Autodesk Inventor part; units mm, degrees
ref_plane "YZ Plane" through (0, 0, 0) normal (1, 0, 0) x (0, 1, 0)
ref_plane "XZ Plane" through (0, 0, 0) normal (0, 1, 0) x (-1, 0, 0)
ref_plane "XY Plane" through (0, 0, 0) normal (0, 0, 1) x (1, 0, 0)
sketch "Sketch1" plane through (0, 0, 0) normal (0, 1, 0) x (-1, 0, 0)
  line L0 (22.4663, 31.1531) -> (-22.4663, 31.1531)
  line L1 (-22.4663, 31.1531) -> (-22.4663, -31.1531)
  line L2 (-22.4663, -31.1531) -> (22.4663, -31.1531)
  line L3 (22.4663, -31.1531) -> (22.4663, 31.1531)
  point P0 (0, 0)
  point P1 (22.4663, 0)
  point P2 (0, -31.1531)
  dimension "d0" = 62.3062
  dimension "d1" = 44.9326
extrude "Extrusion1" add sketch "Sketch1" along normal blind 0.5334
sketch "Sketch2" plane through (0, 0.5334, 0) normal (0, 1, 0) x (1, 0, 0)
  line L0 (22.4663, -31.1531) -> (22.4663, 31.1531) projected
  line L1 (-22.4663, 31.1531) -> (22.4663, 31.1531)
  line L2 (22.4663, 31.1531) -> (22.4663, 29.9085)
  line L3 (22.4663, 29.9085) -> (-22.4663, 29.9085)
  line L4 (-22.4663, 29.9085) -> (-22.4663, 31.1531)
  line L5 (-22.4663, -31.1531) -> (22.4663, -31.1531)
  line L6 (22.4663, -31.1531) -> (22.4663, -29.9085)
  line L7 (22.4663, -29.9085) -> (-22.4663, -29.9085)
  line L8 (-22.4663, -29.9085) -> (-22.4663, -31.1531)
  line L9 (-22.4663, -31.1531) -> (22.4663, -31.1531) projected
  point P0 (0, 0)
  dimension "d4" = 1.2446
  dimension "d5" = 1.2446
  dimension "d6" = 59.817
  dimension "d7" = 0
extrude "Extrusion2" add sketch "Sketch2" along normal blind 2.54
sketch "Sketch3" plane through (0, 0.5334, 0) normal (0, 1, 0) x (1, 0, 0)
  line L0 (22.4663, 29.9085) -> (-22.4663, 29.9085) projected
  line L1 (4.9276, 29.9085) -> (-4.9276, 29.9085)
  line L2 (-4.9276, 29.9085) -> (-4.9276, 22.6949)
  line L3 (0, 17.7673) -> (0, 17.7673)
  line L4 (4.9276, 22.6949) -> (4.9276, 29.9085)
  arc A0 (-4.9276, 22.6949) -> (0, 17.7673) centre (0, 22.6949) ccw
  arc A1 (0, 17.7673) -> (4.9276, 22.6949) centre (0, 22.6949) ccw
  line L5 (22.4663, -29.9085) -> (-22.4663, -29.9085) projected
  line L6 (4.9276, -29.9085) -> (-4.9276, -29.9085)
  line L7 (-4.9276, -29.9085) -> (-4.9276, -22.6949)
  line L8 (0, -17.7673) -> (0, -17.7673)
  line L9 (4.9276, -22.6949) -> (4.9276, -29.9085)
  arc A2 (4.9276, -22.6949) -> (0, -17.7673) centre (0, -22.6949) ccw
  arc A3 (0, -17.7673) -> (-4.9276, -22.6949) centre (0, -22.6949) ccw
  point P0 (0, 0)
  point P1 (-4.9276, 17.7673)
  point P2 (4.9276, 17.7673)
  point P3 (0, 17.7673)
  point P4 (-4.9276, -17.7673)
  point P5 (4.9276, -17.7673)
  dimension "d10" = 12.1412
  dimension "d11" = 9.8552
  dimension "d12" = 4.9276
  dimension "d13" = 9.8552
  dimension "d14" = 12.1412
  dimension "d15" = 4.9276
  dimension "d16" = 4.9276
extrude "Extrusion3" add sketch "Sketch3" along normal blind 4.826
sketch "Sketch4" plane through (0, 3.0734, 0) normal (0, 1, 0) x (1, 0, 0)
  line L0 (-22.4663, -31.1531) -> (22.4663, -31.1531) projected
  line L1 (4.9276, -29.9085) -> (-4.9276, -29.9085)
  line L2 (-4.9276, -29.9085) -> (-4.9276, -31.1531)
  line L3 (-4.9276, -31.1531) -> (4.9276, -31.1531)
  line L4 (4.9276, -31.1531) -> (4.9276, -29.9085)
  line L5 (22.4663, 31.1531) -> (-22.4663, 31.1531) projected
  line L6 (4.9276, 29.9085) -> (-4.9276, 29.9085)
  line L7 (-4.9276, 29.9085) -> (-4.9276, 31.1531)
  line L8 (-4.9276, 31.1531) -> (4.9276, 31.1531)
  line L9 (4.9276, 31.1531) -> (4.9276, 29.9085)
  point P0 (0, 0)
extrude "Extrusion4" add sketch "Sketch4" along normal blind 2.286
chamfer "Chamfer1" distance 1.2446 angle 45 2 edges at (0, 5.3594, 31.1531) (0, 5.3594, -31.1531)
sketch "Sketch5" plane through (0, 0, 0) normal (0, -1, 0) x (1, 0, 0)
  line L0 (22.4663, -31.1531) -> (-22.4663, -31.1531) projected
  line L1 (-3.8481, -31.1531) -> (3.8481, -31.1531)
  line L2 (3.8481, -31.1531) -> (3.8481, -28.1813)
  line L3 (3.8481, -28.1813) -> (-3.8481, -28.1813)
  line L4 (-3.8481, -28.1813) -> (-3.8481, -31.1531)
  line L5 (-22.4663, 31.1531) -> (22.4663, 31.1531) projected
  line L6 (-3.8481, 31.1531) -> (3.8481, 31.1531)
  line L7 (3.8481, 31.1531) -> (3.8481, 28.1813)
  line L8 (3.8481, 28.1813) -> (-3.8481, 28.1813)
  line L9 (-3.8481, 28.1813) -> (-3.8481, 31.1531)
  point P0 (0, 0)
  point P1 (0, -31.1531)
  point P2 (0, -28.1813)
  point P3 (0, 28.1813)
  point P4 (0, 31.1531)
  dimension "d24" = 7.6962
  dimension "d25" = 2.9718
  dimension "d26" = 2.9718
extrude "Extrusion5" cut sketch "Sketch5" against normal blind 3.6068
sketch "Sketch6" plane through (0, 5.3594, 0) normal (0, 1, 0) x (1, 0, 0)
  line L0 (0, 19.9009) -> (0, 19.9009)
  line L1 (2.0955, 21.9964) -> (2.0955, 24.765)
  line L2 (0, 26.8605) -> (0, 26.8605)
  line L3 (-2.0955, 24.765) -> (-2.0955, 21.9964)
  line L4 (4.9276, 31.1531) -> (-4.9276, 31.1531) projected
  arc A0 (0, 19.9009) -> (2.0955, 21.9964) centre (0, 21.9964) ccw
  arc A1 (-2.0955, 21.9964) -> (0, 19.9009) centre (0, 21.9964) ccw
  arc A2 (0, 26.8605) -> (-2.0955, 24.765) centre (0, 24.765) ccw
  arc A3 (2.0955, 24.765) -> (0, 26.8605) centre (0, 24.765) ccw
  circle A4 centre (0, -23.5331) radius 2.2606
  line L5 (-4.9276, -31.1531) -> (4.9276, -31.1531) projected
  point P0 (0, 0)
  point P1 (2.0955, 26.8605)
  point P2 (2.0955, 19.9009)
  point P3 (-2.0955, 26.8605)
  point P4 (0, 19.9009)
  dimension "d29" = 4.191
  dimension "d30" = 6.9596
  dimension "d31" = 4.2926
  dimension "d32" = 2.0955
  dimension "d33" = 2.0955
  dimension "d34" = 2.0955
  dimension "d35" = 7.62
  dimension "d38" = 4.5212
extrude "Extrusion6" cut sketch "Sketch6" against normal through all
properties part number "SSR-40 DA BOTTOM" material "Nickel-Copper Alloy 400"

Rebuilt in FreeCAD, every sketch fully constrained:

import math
import FreeCAD as App
import Part
import Sketcher
Q = App.Units.Quantity


def edges_at(feature, points):
    """Names of the edges that pass closest to the given points."""
    edges = feature.Shape.Edges
    near = lambda p: min(range(len(edges)), key=lambda i: edges[i].distToShape(Part.Vertex(*p))[0])
    return sorted({f"Edge{near(p) + 1}" for p in points})


def add_polygon(sketch, points):
    """Adds a closed chain of lines whose ends are joined by coincident constraints."""
    first, n = sketch.GeometryCount, len(points)
    for a, b in zip(points, points[1:] + points[:1]):
        sketch.addGeometry(Part.LineSegment(App.Vector(*a, 0), App.Vector(*b, 0)), False)
    for i in range(n):
        sketch.addConstraint(Sketcher.Constraint("Coincident", first + i, 2, first + (i + 1) % n, 1))

doc = App.newDocument("Part")
body = doc.addObject("PartDesign::Body", "Body")

# Sketch on XZ plane
sketch1 = doc.addObject("Sketcher::SketchObject", "Sketch")
body.addObject(sketch1)
sketch1.AttachmentSupport = (doc.XZ_Plane, [""])
sketch1.MapMode = "FlatFace"
add_polygon(sketch1, [(-22.4663, -31.1531), (-22.4663, 31.1531), (22.4663, 31.1531), (22.4663, -31.1531)])  # lines 0-3
sketch1.addConstraint([
    Sketcher.Constraint("Vertical", 0),
    Sketcher.Constraint("Horizontal", 1),
    Sketcher.Constraint("Vertical", 2),
    Sketcher.Constraint("Horizontal", 3),
    Sketcher.Constraint("Symmetric", 0, 2, 2, 2, -1, 1),
    Sketcher.Constraint("DistanceX", 1, 1, 1, 2, Q("1.769 in")),
    Sketcher.Constraint("DistanceY", 0, 1, 0, 2, Q("2.453 in")),
])
pad1 = doc.addObject("PartDesign::Pad", "Pad")
body.addObject(pad1)
pad1.Profile = sketch1
pad1.Length = Q("0.021 in")
pad1.Reversed = True

# Sketch on XZ plane
sketch2 = doc.addObject("Sketcher::SketchObject", "Sketch001")
body.addObject(sketch2)
sketch2.AttachmentSupport = (doc.XZ_Plane, [""])
sketch2.MapMode = "FlatFace"
sketch2.AttachmentOffset = App.Placement(App.Vector(0, 0, -0.021 * 25.4), App.Rotation())
add_polygon(sketch2, [(-22.4663, 31.1531), (22.4663, 31.1531), (22.4663, 29.9085), (-22.4663, 29.9085)])  # lines 0-3
add_polygon(sketch2, [(-22.4663, -29.9085), (22.4663, -29.9085), (22.4663, -31.1531), (-22.4663, -31.1531)])  # lines 4-7
sketch2.addConstraint([
    Sketcher.Constraint("Horizontal", 0),
    Sketcher.Constraint("Vertical", 1),
    Sketcher.Constraint("Horizontal", 2),
    Sketcher.Constraint("Vertical", 3),
    Sketcher.Constraint("Horizontal", 4),
    Sketcher.Constraint("Vertical", 5),
    Sketcher.Constraint("Horizontal", 6),
    Sketcher.Constraint("Vertical", 7),
    Sketcher.Constraint("Symmetric", 2, 2, 4, 2, -1, 1),
    Sketcher.Constraint("Symmetric", 0, 2, 6, 2, -1, 1),
    Sketcher.Constraint("Vertical", 1, 2, 4, 2),
    Sketcher.Constraint("DistanceY", 1, 2, 1, 1, Q("0.049 in")),
    Sketcher.Constraint("DistanceY", 4, 2, 1, 2, Q("2.355 in")),
    Sketcher.Constraint("DistanceX", 0, 1, 0, 2, Q("1.769 in")),
])
pad2 = doc.addObject("PartDesign::Pad", "Pad001")
body.addObject(pad2)
pad2.Profile = sketch2
pad2.Length = Q("0.1 in")
pad2.Reversed = True

# Sketch on XZ plane
sketch3 = doc.addObject("Sketcher::SketchObject", "Sketch002")
body.addObject(sketch3)
sketch3.AttachmentSupport = (doc.XZ_Plane, [""])
sketch3.MapMode = "FlatFace"
sketch3.AttachmentOffset = App.Placement(App.Vector(0, 0, -0.021 * 25.4), App.Rotation())
sketch3.addGeometry([
    Part.LineSegment(App.Vector(4.9276, -22.6949, 0), App.Vector(4.9276, -29.9085, 0)),  # 0
    Part.LineSegment(App.Vector(4.9276, -29.9085, 0), App.Vector(-4.9276, -29.9085, 0)),  # 1
    Part.LineSegment(App.Vector(-4.9276, -29.9085, 0), App.Vector(-4.9276, -22.6949, 0)),  # 2
    Part.ArcOfCircle(Part.Circle(App.Vector(0, -22.6949, 0), App.Vector(0, 0, 1), 4.9276), math.radians(0), math.radians(180)),  # 3
    Part.LineSegment(App.Vector(-4.9276, 29.9085, 0), App.Vector(4.9276, 29.9085, 0)),  # 4
    Part.LineSegment(App.Vector(4.9276, 29.9085, 0), App.Vector(4.9276, 22.6949, 0)),  # 5
    Part.ArcOfCircle(Part.Circle(App.Vector(0, 22.6949, 0), App.Vector(0, 0, 1), 4.9276), math.radians(180), math.radians(360)),  # 6
    Part.LineSegment(App.Vector(-4.9276, 22.6949, 0), App.Vector(-4.9276, 29.9085, 0)),  # 7
], False)
sketch3.addConstraint([
    Sketcher.Constraint("Coincident", 0, 2, 1, 1),
    Sketcher.Constraint("Coincident", 1, 2, 2, 1),
    Sketcher.Constraint("Tangent", 2, 2, 3, 2),
    Sketcher.Constraint("Tangent", 3, 1, 0, 1),
    Sketcher.Constraint("Coincident", 4, 2, 5, 1),
    Sketcher.Constraint("Tangent", 5, 2, 6, 2),
    Sketcher.Constraint("Tangent", 6, 1, 7, 1),
    Sketcher.Constraint("Coincident", 7, 2, 4, 1),
    Sketcher.Constraint("Vertical", 0),
    Sketcher.Constraint("Horizontal", 1),
    Sketcher.Constraint("Vertical", 2),
    Sketcher.Constraint("Horizontal", 4),
    Sketcher.Constraint("Vertical", 5),
    Sketcher.Constraint("Vertical", 7),
    Sketcher.Constraint("Equal", 3, 6),
    Sketcher.Constraint("Symmetric", 3, 3, 6, 3, -1, 1),
    Sketcher.Constraint("Symmetric", 0, 2, 4, 2, -1),
    Sketcher.Constraint("Radius", 3, Q("0.194 in")),
    Sketcher.Constraint("DistanceY", 0, 2, 0, 1, Q("0.284 in")),
    Sketcher.Constraint("DistanceY", 3, 3, 6, 3, Q("1.787 in")),
])
pad3 = doc.addObject("PartDesign::Pad", "Pad002")
body.addObject(pad3)
pad3.Profile = sketch3
pad3.Length = Q("0.19 in")
pad3.Reversed = True

# Sketch on XZ plane
sketch4 = doc.addObject("Sketcher::SketchObject", "Sketch003")
body.addObject(sketch4)
sketch4.AttachmentSupport = (doc.XZ_Plane, [""])
sketch4.MapMode = "FlatFace"
sketch4.AttachmentOffset = App.Placement(App.Vector(0, 0, -0.121 * 25.4), App.Rotation())
add_polygon(sketch4, [(-4.9276, 29.9085), (-4.9276, 31.1531), (4.9276, 31.1531), (4.9276, 29.9085)])  # lines 0-3
add_polygon(sketch4, [(4.9276, -29.9085), (4.9276, -31.1531), (-4.9276, -31.1531), (-4.9276, -29.9085)])  # lines 4-7
sketch4.addConstraint([
    Sketcher.Constraint("Vertical", 0),
    Sketcher.Constraint("Horizontal", 1),
    Sketcher.Constraint("Vertical", 2),
    Sketcher.Constraint("Horizontal", 3),
    Sketcher.Constraint("Vertical", 4),
    Sketcher.Constraint("Horizontal", 5),
    Sketcher.Constraint("Vertical", 6),
    Sketcher.Constraint("Horizontal", 7),
    Sketcher.Constraint("Symmetric", 0, 2, 4, 2, -1, 1),
    Sketcher.Constraint("Symmetric", 2, 2, 6, 2, -1, 1),
    Sketcher.Constraint("Vertical", 2, 2, 4, 2),
    Sketcher.Constraint("DistanceX", 1, 1, 1, 2, Q("0.388 in")),
    Sketcher.Constraint("DistanceY", 0, 1, 0, 2, Q("0.049 in")),
    Sketcher.Constraint("DistanceY", 4, 2, 2, 2, Q("2.404 in")),
])
pad4 = doc.addObject("PartDesign::Pad", "Pad003")
body.addObject(pad4)
pad4.Profile = sketch4
pad4.Length = Q("0.09 in")
pad4.Reversed = True
doc.recompute()

chamfer = doc.addObject("PartDesign::Chamfer", "Chamfer")
body.addObject(chamfer)
chamfer.Base = (pad4, edges_at(pad4, [(0, 5.359, 31.153), (0, 5.359, -31.153)]))
chamfer.Size = Q("0.049 in")

# Sketch on XZ plane
sketch5 = doc.addObject("Sketcher::SketchObject", "Sketch004")
body.addObject(sketch5)
sketch5.AttachmentSupport = (doc.XZ_Plane, [""])
sketch5.MapMode = "FlatFace"
add_polygon(sketch5, [(-3.8481, -31.1531), (3.8481, -31.1531), (3.8481, -28.1813), (-3.8481, -28.1813)])  # lines 0-3
add_polygon(sketch5, [(3.8481, 31.1531), (-3.8481, 31.1531), (-3.8481, 28.1813), (3.8481, 28.1813)])  # lines 4-7
sketch5.addConstraint([
    Sketcher.Constraint("Horizontal", 0),
    Sketcher.Constraint("Vertical", 1),
    Sketcher.Constraint("Horizontal", 2),
    Sketcher.Constraint("Vertical", 3),
    Sketcher.Constraint("Horizontal", 4),
    Sketcher.Constraint("Vertical", 5),
    Sketcher.Constraint("Horizontal", 6),
    Sketcher.Constraint("Vertical", 7),
    Sketcher.Constraint("Symmetric", 0, 2, 4, 2, -1, 1),
    Sketcher.Constraint("Symmetric", 2, 2, 6, 2, -1, 1),
    Sketcher.Constraint("Vertical", 3, 2, 4, 2),
    Sketcher.Constraint("DistanceX", 0, 1, 0, 2, Q("0.303 in")),
    Sketcher.Constraint("DistanceY", 1, 1, 1, 2, Q("0.117 in")),
    Sketcher.Constraint("DistanceY", 2, 2, 4, 2, Q("2.336 in")),
])
pocket1 = doc.addObject("PartDesign::Pocket", "Pocket")
body.addObject(pocket1)
pocket1.Profile = sketch5
pocket1.Length = Q("0.142 in")

# Sketch on XZ plane
sketch6 = doc.addObject("Sketcher::SketchObject", "Sketch005")
body.addObject(sketch6)
sketch6.AttachmentSupport = (doc.XZ_Plane, [""])
sketch6.MapMode = "FlatFace"
sketch6.AttachmentOffset = App.Placement(App.Vector(0, 0, -0.211 * 25.4), App.Rotation())
sketch6.addGeometry([
    Part.ArcOfCircle(Part.Circle(App.Vector(0, -21.9964, 0), App.Vector(0, 0, 1), 2.0955), math.radians(0), math.radians(180)),  # 0
    Part.LineSegment(App.Vector(2.0955, -21.9964, 0), App.Vector(2.0955, -24.765, 0)),  # 1
    Part.ArcOfCircle(Part.Circle(App.Vector(0, -24.765, 0), App.Vector(0, 0, 1), 2.0955), math.radians(180), math.radians(360)),  # 2
    Part.LineSegment(App.Vector(-2.0955, -24.765, 0), App.Vector(-2.0955, -21.9964, 0)),  # 3
    Part.Circle(App.Vector(0, 23.5331, 0), App.Vector(0, 0, 1), 2.2606),  # 4
], False)
sketch6.addConstraint([
    Sketcher.Constraint("Tangent", 0, 1, 1, 1),
    Sketcher.Constraint("Tangent", 1, 2, 2, 2),
    Sketcher.Constraint("Tangent", 2, 1, 3, 1),
    Sketcher.Constraint("Tangent", 3, 2, 0, 2),
    Sketcher.Constraint("Vertical", 1),
    Sketcher.Constraint("Vertical", 3),
    Sketcher.Constraint("PointOnObject", 0, 3, -2),
    Sketcher.Constraint("PointOnObject", 4, 3, -2),
    Sketcher.Constraint("Diameter", 4, Q("0.178 in")),
    Sketcher.Constraint("Radius", 0, Q("0.0825 in")),
    Sketcher.Constraint("DistanceY", 1, 2, 1, 1, Q("0.109 in")),
    Sketcher.Constraint("DistanceY", 0, 3, -1, 1, Q("0.866 in")),
    Sketcher.Constraint("DistanceY", -1, 1, 4, 3, Q("0.9265 in")),
])
pocket2 = doc.addObject("PartDesign::Pocket", "Pocket001")
body.addObject(pocket2)
pocket2.Profile = sketch6
pocket2.Type = "ThroughAll"
pocket2.Reversed = True

doc.recompute()
